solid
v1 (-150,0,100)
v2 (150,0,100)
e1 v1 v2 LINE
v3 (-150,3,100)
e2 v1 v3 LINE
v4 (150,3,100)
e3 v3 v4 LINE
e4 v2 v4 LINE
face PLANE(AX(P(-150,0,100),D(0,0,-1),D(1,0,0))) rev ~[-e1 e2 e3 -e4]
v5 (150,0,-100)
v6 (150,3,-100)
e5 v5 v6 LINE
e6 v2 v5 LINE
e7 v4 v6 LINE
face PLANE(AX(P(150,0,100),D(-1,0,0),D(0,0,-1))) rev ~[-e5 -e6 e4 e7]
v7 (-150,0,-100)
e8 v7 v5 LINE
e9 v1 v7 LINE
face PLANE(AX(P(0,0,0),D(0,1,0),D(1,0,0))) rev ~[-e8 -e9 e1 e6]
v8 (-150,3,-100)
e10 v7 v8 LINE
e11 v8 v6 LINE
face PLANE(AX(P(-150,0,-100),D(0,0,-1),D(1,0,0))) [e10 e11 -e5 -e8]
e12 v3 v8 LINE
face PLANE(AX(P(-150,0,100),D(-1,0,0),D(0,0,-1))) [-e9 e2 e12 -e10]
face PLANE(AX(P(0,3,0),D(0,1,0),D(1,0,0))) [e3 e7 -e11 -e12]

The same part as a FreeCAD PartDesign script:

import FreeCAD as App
import Part
import Sketcher
from FreeCAD import Vector

doc = App.newDocument("Part")
body = doc.addObject("PartDesign::Body", "Body")

sketch1 = doc.addObject("Sketcher::SketchObject", "Sketch")
body.addObject(sketch1)
sketch1.AttachmentSupport = (doc.XZ_Plane, [""])
sketch1.MapMode = "FlatFace"
sketch1.addGeometry([
    Part.LineSegment(Vector(-150, -100, 0), Vector(-150, 100, 0)),
    Part.LineSegment(Vector(-150, 100, 0), Vector(150, 100, 0)),
    Part.LineSegment(Vector(150, 100, 0), Vector(150, -100, 0)),
    Part.LineSegment(Vector(150, -100, 0), Vector(-150, -100, 0)),
], False)
sketch1.addConstraint([
    Sketcher.Constraint("Coincident", 0, 2, 1, 1),
    Sketcher.Constraint("Coincident", 1, 2, 2, 1),
    Sketcher.Constraint("Coincident", 2, 2, 3, 1),
    Sketcher.Constraint("Coincident", 3, 2, 0, 1),
    Sketcher.Constraint("Vertical", 0),
    Sketcher.Constraint("Horizontal", 1),
    Sketcher.Constraint("Vertical", 2),
    Sketcher.Constraint("Horizontal", 3),
    Sketcher.Constraint("Symmetric", 0, 2, 2, 2, -1, 1),
    Sketcher.Constraint("DistanceX", 1, 1, 1, 2, 300.0),
    Sketcher.Constraint("DistanceY", 0, 1, 0, 2, 200.0),
])
pad1 = doc.addObject("PartDesign::Pad", "Pad")
body.addObject(pad1)
pad1.Profile = sketch1
pad1.Length = 3
pad1.Reversed = True

doc.recompute()
